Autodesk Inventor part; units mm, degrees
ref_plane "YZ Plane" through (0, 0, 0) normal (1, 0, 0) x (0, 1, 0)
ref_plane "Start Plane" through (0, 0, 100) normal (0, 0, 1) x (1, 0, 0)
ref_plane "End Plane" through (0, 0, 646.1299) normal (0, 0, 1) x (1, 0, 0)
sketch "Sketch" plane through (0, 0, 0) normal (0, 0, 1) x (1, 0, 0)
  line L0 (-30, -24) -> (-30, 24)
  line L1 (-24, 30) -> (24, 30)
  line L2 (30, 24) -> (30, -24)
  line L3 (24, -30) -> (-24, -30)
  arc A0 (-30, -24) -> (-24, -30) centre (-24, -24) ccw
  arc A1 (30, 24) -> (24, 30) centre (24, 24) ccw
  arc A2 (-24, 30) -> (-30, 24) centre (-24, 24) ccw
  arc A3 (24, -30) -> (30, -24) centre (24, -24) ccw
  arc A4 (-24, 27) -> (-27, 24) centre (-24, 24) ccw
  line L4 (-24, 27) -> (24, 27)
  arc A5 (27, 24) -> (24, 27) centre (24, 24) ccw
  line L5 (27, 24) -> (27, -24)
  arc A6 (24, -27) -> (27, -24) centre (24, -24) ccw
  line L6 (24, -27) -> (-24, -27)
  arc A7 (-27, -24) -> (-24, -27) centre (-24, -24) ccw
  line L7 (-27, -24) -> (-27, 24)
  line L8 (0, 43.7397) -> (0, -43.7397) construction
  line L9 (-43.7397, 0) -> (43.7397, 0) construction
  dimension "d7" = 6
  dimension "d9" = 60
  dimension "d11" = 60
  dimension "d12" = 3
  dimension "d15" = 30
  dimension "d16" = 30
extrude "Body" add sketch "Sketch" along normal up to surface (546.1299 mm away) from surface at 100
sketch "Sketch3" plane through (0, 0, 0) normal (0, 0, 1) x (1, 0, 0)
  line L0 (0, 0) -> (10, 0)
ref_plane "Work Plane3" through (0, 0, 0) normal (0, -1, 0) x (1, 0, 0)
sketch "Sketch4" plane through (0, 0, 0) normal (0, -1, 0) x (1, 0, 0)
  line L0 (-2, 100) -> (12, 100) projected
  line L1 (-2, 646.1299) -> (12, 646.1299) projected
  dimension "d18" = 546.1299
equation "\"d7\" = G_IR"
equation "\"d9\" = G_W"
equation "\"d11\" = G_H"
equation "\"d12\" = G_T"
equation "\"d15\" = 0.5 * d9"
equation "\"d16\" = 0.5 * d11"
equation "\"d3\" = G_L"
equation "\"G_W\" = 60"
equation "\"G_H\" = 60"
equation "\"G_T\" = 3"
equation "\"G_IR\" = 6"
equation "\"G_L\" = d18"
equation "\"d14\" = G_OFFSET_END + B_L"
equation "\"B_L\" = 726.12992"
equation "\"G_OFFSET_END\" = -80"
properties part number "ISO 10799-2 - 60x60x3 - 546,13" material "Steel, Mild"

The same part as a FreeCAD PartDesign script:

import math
import FreeCAD as App
import Part
import Sketcher

doc = App.newDocument("Part")
body = doc.addObject("PartDesign::Body", "Body")

# Sketch on XY plane
sketch1 = body.newObject("Sketcher::SketchObject", "Sketch")
sketch1.AttachmentSupport = (doc.getObject("XY_Plane"), [""])
sketch1.MapMode = "FlatFace"
sketch1.AttachmentOffset = App.Placement(App.Vector(0, 0, 100), App.Rotation())
sketch1.addGeometry([
    Part.LineSegment(App.Vector(-30, 24, 0), App.Vector(-30, -24, 0)),  # 0
    Part.ArcOfCircle(Part.Circle(App.Vector(-24, -24, 0), App.Vector(0, 0, 1), 6), math.radians(180), math.radians(270)),  # 1
    Part.LineSegment(App.Vector(-24, -30, 0), App.Vector(24, -30, 0)),  # 2
    Part.ArcOfCircle(Part.Circle(App.Vector(24, -24, 0), App.Vector(0, 0, 1), 6), math.radians(-90), math.radians(0)),  # 3
    Part.LineSegment(App.Vector(30, -24, 0), App.Vector(30, 24, 0)),  # 4
    Part.ArcOfCircle(Part.Circle(App.Vector(24, 24, 0), App.Vector(0, 0, 1), 6), math.radians(0), math.radians(90)),  # 5
    Part.LineSegment(App.Vector(24, 30, 0), App.Vector(-24, 30, 0)),  # 6
    Part.ArcOfCircle(Part.Circle(App.Vector(-24, 24, 0), App.Vector(0, 0, 1), 6), math.radians(90), math.radians(180)),  # 7
    Part.ArcOfCircle(Part.Circle(App.Vector(-24, 24, 0), App.Vector(0, 0, 1), 3), math.radians(90), math.radians(180)),  # 8
    Part.LineSegment(App.Vector(-24, 27, 0), App.Vector(24, 27, 0)),  # 9
    Part.ArcOfCircle(Part.Circle(App.Vector(24, 24, 0), App.Vector(0, 0, 1), 3), math.radians(0), math.radians(90)),  # 10
    Part.LineSegment(App.Vector(27, 24, 0), App.Vector(27, -24, 0)),  # 11
    Part.ArcOfCircle(Part.Circle(App.Vector(24, -24, 0), App.Vector(0, 0, 1), 3), math.radians(-90), math.radians(0)),  # 12
    Part.LineSegment(App.Vector(24, -27, 0), App.Vector(-24, -27, 0)),  # 13
    Part.ArcOfCircle(Part.Circle(App.Vector(-24, -24, 0), App.Vector(0, 0, 1), 3), math.radians(180), math.radians(270)),  # 14
    Part.LineSegment(App.Vector(-27, -24, 0), App.Vector(-27, 24, 0)),  # 15
], False)
sketch1.addConstraint([
    Sketcher.Constraint("Tangent", 0, 2, 1, 1),
    Sketcher.Constraint("Tangent", 1, 2, 2, 1),
    Sketcher.Constraint("Tangent", 2, 2, 3, 1),
    Sketcher.Constraint("Tangent", 3, 2, 4, 1),
    Sketcher.Constraint("Tangent", 4, 2, 5, 1),
    Sketcher.Constraint("Tangent", 5, 2, 6, 1),
    Sketcher.Constraint("Tangent", 6, 2, 7, 1),
    Sketcher.Constraint("Tangent", 7, 2, 0, 1),
    Sketcher.Constraint("Tangent", 8, 1, 9, 1),
    Sketcher.Constraint("Tangent", 9, 2, 10, 2),
    Sketcher.Constraint("Tangent", 10, 1, 11, 1),
    Sketcher.Constraint("Tangent", 11, 2, 12, 2),
    Sketcher.Constraint("Tangent", 12, 1, 13, 1),
    Sketcher.Constraint("Tangent", 13, 2, 14, 2),
    Sketcher.Constraint("Tangent", 14, 1, 15, 1),
    Sketcher.Constraint("Tangent", 15, 2, 8, 2),
    Sketcher.Constraint("Vertical", 0),
    Sketcher.Constraint("Horizontal", 2),
    Sketcher.Constraint("Vertical", 4),
    Sketcher.Constraint("Horizontal", 6),
    Sketcher.Constraint("Horizontal", 9),
    Sketcher.Constraint("Vertical", 11),
    Sketcher.Constraint("Horizontal", 13),
    Sketcher.Constraint("Vertical", 15),
    Sketcher.Constraint("Coincident", 8, 3, 7, 3),
    Sketcher.Constraint("Coincident", 10, 3, 5, 3),
    Sketcher.Constraint("Coincident", 12, 3, 3, 3),
    Sketcher.Constraint("Equal", 1, 3),
    Sketcher.Constraint("Equal", 3, 5),
    Sketcher.Constraint("Equal", 5, 7),
    Sketcher.Constraint("Equal", 12, 14),
    Sketcher.Constraint("Symmetric", 1, 3, 5, 3, -1, 1),
    Sketcher.Constraint("Equal", 13, 0),
    Sketcher.Constraint("Radius", 1, 6.0),
    Sketcher.Constraint("Radius", 8, 3.0),
    Sketcher.Constraint("DistanceX", 0, 2, -1, 1, 30.0),
])
pad1 = body.newObject("PartDesign::Pad", "Pad")
pad1.Profile = sketch1
pad1.Length = 546.1299

doc.recompute()
